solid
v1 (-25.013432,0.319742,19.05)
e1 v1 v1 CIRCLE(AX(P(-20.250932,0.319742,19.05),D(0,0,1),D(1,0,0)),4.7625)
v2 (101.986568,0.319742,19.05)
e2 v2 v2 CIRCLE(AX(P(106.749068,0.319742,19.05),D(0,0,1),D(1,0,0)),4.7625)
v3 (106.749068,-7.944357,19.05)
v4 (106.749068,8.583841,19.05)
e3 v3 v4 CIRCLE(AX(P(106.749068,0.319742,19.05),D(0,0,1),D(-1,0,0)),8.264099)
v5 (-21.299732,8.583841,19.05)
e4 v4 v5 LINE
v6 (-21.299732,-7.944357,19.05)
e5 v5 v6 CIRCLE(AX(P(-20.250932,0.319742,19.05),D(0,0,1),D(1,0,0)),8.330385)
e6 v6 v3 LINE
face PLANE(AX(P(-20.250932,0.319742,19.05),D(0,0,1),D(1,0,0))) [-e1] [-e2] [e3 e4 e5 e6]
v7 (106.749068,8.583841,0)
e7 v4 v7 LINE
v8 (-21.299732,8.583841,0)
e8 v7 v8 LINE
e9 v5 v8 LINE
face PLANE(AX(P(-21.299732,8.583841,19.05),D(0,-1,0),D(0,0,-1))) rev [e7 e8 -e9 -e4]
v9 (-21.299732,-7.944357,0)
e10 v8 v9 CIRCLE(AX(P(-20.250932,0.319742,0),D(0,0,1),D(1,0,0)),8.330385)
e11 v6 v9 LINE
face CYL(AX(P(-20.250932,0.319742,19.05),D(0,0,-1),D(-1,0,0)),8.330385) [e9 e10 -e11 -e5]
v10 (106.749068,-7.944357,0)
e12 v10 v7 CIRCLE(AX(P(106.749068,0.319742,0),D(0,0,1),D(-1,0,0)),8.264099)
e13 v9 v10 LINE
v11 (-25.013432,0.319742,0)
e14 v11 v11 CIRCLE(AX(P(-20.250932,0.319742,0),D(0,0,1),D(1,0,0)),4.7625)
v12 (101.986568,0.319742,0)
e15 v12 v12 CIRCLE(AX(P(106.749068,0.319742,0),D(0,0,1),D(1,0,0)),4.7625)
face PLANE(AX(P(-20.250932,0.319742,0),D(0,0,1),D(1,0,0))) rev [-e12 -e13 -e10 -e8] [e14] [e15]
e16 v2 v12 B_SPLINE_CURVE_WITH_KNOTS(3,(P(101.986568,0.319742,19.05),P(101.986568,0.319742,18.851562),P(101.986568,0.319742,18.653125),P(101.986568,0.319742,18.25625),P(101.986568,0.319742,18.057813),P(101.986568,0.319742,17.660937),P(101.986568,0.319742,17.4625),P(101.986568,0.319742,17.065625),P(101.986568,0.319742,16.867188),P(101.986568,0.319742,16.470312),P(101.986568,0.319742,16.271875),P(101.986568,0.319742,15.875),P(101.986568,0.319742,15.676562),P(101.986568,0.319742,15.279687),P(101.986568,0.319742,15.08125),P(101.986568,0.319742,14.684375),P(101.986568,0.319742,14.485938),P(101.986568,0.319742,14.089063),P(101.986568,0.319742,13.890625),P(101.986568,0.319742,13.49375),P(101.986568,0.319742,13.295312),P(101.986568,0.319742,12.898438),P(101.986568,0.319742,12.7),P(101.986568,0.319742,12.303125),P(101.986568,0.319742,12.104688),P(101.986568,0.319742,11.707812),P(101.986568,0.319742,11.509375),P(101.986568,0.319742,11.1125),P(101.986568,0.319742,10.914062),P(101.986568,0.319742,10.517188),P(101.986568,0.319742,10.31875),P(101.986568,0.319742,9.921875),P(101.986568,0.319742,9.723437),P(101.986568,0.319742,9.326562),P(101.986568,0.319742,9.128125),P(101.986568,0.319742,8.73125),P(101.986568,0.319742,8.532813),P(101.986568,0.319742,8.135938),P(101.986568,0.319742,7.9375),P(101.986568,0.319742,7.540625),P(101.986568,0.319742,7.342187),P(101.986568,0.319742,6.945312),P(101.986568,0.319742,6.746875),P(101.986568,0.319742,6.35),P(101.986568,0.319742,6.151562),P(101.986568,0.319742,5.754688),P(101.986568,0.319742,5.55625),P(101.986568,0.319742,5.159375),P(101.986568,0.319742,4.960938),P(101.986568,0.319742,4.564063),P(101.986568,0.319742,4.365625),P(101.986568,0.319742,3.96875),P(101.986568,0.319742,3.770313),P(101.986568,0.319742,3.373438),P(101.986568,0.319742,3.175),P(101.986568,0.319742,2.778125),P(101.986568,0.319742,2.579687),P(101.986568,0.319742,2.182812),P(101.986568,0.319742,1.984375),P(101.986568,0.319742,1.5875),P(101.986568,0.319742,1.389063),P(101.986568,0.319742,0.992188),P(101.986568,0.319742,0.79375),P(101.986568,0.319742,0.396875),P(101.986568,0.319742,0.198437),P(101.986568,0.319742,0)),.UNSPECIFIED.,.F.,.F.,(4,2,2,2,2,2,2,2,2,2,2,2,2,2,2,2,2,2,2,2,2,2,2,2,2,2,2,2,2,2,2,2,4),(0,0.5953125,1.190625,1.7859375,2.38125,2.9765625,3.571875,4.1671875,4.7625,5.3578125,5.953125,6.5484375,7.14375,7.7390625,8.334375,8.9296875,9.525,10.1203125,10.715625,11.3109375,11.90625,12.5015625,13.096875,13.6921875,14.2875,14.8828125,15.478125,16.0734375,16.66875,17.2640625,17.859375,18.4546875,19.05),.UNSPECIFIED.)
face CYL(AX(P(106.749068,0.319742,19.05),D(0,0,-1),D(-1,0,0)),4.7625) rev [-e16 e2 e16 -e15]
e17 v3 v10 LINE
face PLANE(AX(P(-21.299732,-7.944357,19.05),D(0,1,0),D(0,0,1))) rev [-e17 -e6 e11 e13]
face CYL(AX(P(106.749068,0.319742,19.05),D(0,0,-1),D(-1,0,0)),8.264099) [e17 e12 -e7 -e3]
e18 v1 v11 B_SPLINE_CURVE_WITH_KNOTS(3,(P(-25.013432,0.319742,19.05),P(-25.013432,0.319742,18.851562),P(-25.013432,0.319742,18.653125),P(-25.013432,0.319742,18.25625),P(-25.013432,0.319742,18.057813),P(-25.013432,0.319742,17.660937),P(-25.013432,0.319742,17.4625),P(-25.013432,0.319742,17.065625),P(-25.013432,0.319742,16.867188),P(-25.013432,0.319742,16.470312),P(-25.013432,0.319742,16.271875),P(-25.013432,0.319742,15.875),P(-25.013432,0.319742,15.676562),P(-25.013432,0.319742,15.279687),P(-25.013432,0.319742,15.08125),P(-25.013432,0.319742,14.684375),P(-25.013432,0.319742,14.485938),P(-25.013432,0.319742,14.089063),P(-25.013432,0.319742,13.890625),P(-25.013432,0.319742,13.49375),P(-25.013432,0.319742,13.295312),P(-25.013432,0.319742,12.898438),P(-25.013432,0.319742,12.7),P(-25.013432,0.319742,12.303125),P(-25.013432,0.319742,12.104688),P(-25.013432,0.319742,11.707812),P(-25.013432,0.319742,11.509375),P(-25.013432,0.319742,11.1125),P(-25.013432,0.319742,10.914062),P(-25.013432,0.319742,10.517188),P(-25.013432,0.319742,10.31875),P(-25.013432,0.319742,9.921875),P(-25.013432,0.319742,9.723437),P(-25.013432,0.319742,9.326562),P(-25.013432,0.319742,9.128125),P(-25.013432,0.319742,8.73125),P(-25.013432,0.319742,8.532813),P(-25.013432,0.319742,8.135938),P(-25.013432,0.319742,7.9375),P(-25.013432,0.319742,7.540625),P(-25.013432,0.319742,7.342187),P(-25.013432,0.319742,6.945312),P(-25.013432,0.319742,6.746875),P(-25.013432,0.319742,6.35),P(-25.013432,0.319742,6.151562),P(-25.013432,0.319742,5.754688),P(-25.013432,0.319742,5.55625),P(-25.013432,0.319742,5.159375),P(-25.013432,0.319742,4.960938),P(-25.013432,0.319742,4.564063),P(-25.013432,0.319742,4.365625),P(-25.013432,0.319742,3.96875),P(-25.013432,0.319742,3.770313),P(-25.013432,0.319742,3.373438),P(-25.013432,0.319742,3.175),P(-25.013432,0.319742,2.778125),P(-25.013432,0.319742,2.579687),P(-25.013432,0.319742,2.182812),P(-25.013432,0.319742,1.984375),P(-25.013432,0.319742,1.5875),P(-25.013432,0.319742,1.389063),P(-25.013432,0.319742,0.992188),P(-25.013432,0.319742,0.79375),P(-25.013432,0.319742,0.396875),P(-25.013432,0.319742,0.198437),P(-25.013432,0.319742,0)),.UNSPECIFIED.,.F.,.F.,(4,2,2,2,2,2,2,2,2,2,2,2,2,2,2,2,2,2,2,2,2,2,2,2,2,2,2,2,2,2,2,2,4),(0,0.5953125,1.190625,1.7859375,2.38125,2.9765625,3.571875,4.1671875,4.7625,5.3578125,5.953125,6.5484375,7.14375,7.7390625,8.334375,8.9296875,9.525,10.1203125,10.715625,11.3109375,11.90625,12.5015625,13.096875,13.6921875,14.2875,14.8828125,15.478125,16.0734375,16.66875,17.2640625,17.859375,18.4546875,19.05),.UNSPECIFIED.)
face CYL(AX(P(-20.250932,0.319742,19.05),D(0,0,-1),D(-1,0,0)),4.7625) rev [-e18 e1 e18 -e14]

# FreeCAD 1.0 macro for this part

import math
import FreeCAD as App
import Part
import Sketcher

V = App.Vector
Q = App.Units.Quantity

doc = App.newDocument("Part")
body = doc.addObject("PartDesign::Body", "Body")

# Sketch on XY plane
sketch1 = body.newObject("Sketcher::SketchObject", "Sketch")
sketch1.AttachmentSupport = (doc.getObject("XY_Plane"), [""])
sketch1.MapMode = "FlatFace"
sketch1.addGeometry([
    Part.LineSegment(V(106.7, 8.6, 0), V(-21.3, 8.6, 0)),  # 0
    Part.ArcOfCircle(Part.Circle(V(-20.3, 0.3, 0), V(0, 0, 1), 8.3), math.radians(97), math.radians(263)),  # 1
    Part.LineSegment(V(-21.3, -7.9, 0), V(106.7, -7.9, 0)),  # 2
    Part.ArcOfCircle(Part.Circle(V(106.7, 0.3, 0), V(0, 0, 1), 8.3), math.radians(-90), math.radians(90)),  # 3
    Part.Circle(V(106.7, 0.3, 0), V(0, 0, 1), 4.8),  # 4
    Part.Circle(V(-20.3, 0.3, 0), V(0, 0, 1), 4.8),  # 5
], False)
sketch1.addConstraint([
    Sketcher.Constraint("Coincident", 0, 2, 1, 1),
    Sketcher.Constraint("Coincident", 1, 2, 2, 1),
    Sketcher.Constraint("Tangent", 2, 2, 3, 1),
    Sketcher.Constraint("Tangent", 3, 2, 0, 1),
    Sketcher.Constraint("Horizontal", 0),
    Sketcher.Constraint("Horizontal", 2),
    Sketcher.Constraint("Coincident", 4, 3, 3, 3),
    Sketcher.Constraint("Coincident", 5, 3, 1, 3),
    Sketcher.Constraint("Equal", 4, 5),
    Sketcher.Constraint("Horizontal", 1, 3, 3, 3),
    Sketcher.Constraint("Diameter", 4, Q("0.375 in")),
    Sketcher.Constraint("DistanceX", 1, 3, 3, 3, Q("5 in")),
    Sketcher.Constraint("Radius", 3, 8.264099),
    Sketcher.Constraint("DistanceX", 0, 2, 0, 1, 128.0488),
    Sketcher.Constraint("DistanceY", -1, 1, 1, 3, 0.319742),
    Sketcher.Constraint("DistanceX", 1, 3, -1, 1, 20.250932),
])
pad1 = body.newObject("PartDesign::Pad", "Pad")
pad1.Profile = sketch1
pad1.Length = Q("0.75 in")

doc.recompute()
